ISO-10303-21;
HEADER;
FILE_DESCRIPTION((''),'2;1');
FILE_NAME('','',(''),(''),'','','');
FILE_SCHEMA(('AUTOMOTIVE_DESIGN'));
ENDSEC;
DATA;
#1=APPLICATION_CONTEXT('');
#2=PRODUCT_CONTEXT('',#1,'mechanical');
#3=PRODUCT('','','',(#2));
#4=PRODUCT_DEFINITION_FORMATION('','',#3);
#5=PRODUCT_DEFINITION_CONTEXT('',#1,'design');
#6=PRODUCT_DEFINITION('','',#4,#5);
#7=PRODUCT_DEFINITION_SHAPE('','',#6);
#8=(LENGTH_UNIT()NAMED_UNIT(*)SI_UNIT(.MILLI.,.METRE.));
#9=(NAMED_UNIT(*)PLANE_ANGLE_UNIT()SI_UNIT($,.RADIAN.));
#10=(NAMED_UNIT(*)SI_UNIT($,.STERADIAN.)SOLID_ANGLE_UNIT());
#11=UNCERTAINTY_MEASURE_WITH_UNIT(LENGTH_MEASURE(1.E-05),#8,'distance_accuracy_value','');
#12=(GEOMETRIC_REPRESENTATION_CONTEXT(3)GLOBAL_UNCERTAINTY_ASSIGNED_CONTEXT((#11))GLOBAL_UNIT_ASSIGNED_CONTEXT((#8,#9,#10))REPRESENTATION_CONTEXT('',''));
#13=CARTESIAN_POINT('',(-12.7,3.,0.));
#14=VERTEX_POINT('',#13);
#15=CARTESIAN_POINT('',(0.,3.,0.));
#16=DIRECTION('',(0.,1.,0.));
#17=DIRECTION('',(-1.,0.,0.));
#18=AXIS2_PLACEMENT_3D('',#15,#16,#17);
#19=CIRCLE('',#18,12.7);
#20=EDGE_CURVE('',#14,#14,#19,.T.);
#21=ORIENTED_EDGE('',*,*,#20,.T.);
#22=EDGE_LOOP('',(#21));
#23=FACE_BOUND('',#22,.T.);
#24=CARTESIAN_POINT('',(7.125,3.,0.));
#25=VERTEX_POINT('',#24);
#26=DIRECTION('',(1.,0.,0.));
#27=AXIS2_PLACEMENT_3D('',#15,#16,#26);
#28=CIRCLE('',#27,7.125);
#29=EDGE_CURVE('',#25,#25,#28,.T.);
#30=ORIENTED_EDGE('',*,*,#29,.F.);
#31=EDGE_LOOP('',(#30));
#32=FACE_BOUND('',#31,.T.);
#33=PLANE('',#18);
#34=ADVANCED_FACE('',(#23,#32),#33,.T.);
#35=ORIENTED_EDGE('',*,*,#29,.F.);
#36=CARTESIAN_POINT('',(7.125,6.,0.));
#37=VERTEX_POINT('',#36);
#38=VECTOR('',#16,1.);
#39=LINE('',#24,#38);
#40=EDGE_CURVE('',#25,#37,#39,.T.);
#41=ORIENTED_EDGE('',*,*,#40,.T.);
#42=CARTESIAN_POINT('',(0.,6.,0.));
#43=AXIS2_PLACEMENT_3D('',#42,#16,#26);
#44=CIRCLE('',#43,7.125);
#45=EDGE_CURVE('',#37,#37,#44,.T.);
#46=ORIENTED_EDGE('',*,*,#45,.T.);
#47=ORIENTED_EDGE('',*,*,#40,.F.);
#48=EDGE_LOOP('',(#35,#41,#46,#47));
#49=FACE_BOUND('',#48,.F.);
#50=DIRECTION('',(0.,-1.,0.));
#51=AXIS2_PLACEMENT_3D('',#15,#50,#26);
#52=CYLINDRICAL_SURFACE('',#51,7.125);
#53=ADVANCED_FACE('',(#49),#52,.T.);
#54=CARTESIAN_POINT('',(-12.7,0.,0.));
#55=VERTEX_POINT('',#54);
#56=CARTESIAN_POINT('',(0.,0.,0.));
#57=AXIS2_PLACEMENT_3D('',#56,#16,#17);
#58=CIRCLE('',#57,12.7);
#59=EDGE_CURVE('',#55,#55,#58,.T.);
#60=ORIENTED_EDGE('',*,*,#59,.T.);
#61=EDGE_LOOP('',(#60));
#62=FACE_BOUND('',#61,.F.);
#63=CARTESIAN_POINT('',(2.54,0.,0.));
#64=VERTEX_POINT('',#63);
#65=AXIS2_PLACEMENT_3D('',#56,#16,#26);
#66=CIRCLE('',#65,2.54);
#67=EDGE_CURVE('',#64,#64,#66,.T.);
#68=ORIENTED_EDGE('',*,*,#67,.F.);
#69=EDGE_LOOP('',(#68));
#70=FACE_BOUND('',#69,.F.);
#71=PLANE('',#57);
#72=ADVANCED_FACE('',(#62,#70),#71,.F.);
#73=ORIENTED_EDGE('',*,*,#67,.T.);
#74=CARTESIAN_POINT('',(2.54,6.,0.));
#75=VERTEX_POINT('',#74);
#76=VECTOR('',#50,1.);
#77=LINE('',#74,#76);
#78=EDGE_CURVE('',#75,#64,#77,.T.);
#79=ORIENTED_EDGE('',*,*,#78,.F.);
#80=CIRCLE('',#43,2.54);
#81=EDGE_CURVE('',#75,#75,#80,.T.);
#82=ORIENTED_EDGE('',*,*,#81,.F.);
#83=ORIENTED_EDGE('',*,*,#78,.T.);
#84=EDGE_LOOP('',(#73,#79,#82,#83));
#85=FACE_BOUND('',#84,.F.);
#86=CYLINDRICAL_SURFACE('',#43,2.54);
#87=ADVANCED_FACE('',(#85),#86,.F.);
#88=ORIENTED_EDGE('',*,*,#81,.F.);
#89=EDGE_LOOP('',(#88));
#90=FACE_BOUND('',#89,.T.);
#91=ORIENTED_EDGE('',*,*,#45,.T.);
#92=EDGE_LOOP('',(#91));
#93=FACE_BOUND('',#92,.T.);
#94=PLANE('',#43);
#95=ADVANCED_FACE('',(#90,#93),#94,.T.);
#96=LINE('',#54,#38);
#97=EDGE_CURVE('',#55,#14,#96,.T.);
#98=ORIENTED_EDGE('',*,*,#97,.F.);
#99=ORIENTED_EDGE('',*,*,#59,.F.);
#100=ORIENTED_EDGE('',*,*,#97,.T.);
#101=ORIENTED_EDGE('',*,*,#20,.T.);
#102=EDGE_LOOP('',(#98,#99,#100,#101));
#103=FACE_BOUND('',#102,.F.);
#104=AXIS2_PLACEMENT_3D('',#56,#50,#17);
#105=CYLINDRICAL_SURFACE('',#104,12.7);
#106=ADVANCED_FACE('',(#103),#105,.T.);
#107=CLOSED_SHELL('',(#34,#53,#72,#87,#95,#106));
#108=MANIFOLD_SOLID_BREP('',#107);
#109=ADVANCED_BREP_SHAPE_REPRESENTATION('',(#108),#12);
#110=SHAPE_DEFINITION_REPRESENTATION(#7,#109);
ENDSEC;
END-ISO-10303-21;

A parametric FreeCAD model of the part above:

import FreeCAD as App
import Part
import Sketcher
Q = App.Units.Quantity

doc = App.newDocument("Part")
body = doc.addObject("PartDesign::Body", "Body")

# Sketch on XZ plane
sketch1 = body.newObject("Sketcher::SketchObject", "Sketch")
sketch1.AttachmentSupport = (doc.getObject("XZ_Plane"), [""])
sketch1.MapMode = "FlatFace"
sketch1.addGeometry(Part.Circle(App.Vector(0, 0, 0), App.Vector(0, 0, 1), 12.7), False)
sketch1.addConstraint([
    Sketcher.Constraint("Coincident", 0, 3, -1, 1),
    Sketcher.Constraint("Diameter", 0, Q("1 in")),
])
pad1 = body.newObject("PartDesign::Pad", "Pad")
pad1.Profile = sketch1
pad1.Length = Q("0.1181102 in")
pad1.Reversed = True

# Sketch on XZ plane
sketch2 = body.newObject("Sketcher::SketchObject", "Sketch001")
sketch2.AttachmentSupport = (doc.getObject("XZ_Plane"), [""])
sketch2.MapMode = "FlatFace"
sketch2.AttachmentOffset = App.Placement(App.Vector(0, 0, -0.1181102 * 25.4), App.Rotation())
sketch2.addGeometry(Part.Circle(App.Vector(0, 0, 0), App.Vector(0, 0, 1), 7.125), False)
sketch2.addConstraint([
    Sketcher.Constraint("Coincident", 0, 3, -1, 1),
    Sketcher.Constraint("Diameter", 0, Q("14.25 mm")),
])
pad2 = body.newObject("PartDesign::Pad", "Pad001")
pad2.Profile = sketch2
pad2.Length = Q("0.1181102 in")
pad2.Reversed = True

# Sketch on XZ plane
sketch3 = body.newObject("Sketcher::SketchObject", "Sketch002")
sketch3.AttachmentSupport = (doc.getObject("XZ_Plane"), [""])
sketch3.MapMode = "FlatFace"
sketch3.AttachmentOffset = App.Placement(App.Vector(0, 0, -6), App.Rotation())
sketch3.addGeometry(Part.Circle(App.Vector(0, 0, 0), App.Vector(0, 0, 1), 2.54), False)
sketch3.addConstraint([
    Sketcher.Constraint("Coincident", 0, 3, -1, 1),
    Sketcher.Constraint("Diameter", 0, Q("0.2 in")),
])
pocket1 = body.newObject("PartDesign::Pocket", "Pocket")
pocket1.Profile = sketch3
pocket1.Type = "UpToFirst"
pocket1.Reversed = True

doc.recompute()
